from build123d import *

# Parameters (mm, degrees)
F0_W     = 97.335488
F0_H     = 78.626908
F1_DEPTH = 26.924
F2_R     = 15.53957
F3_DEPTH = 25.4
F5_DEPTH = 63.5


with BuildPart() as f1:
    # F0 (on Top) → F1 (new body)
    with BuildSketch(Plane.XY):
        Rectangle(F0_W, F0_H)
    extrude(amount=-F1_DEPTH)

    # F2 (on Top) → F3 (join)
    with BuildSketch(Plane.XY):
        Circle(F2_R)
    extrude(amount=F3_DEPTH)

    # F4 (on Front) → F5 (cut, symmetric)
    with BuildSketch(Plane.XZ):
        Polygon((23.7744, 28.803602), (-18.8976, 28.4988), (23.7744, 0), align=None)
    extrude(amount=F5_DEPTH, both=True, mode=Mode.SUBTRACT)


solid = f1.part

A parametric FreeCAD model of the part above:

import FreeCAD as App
import Part
import Sketcher

V = App.Vector
Q = App.Units.Quantity

doc = App.newDocument("Part")
body = doc.addObject("PartDesign::Body", "Body")

sketch1 = doc.addObject("Sketcher::SketchObject", "Sketch")
body.addObject(sketch1)
sketch1.AttachmentSupport = (doc.XY_Plane, [""])
sketch1.MapMode = "FlatFace"
sketch1.addGeometry([
    Part.LineSegment(V(-49, 39, 0), V(-49, -39, 0)),
    Part.LineSegment(V(-49, -39, 0), V(49, -39, 0)),
    Part.LineSegment(V(49, -39, 0), V(49, 39, 0)),
    Part.LineSegment(V(49, 39, 0), V(-49, 39, 0)),
], False)
sketch1.addConstraint([
    Sketcher.Constraint("Coincident", 0, 2, 1, 1),
    Sketcher.Constraint("Coincident", 1, 2, 2, 1),
    Sketcher.Constraint("Coincident", 2, 2, 3, 1),
    Sketcher.Constraint("Coincident", 3, 2, 0, 1),
    Sketcher.Constraint("Vertical", 0),
    Sketcher.Constraint("Horizontal", 1),
    Sketcher.Constraint("Vertical", 2),
    Sketcher.Constraint("Horizontal", 3),
    Sketcher.Constraint("Symmetric", 0, 2, 2, 2, -1, 1),
    Sketcher.Constraint("DistanceX", 1, 1, 1, 2, Q("97.335488 mm")),
    Sketcher.Constraint("DistanceY", 0, 2, 0, 1, Q("78.626908 mm")),
])
pad1 = doc.addObject("PartDesign::Pad", "Pad")
body.addObject(pad1)
pad1.Profile = sketch1
pad1.Length = Q("1.06 in")
pad1.Reversed = True

sketch2 = doc.addObject("Sketcher::SketchObject", "Sketch001")
body.addObject(sketch2)
sketch2.AttachmentSupport = (doc.XY_Plane, [""])
sketch2.MapMode = "FlatFace"
sketch2.addGeometry(Part.Circle(V(0, 0, 0), V(0, 0, 1), 16), False)
sketch2.addConstraint([
    Sketcher.Constraint("Coincident", 0, 3, -1, 1),
    Sketcher.Constraint("Diameter", 0, Q("31.07914 mm")),
])
pad2 = doc.addObject("PartDesign::Pad", "Pad001")
body.addObject(pad2)
pad2.Profile = sketch2
pad2.Length = Q("1 in")

sketch3 = doc.addObject("Sketcher::SketchObject", "Sketch002")
body.addObject(sketch3)
sketch3.AttachmentSupport = (doc.XZ_Plane, [""])
sketch3.MapMode = "FlatFace"
sketch3.addGeometry([
    Part.LineSegment(V(24, 29, 0), V(-19, 28, 0)),
    Part.LineSegment(V(-19, 28, 0), V(24, 0, 0)),
    Part.LineSegment(V(24, 0, 0), V(24, 29, 0)),
], False)
sketch3.addConstraint([
    Sketcher.Constraint("Coincident", 0, 2, 1, 1),
    Sketcher.Constraint("Coincident", 1, 2, 2, 1),
    Sketcher.Constraint("Coincident", 2, 2, 0, 1),
    Sketcher.Constraint("Vertical", 2),
    Sketcher.Constraint("PointOnObject", 1, 2, -1),
    Sketcher.Constraint("DistanceY", 2, 1, 2, 2, Q("1.1340001 in")),
    Sketcher.Constraint("DistanceX", 0, 2, 1, 2, Q("1.68 in")),
    Sketcher.Constraint("DistanceX", 0, 2, -1, 1, Q("0.744 in")),
    Sketcher.Constraint("DistanceY", -1, 1, 0, 2, Q("1.122 in")),
])
pocket1 = doc.addObject("PartDesign::Pocket", "Pocket")
body.addObject(pocket1)
pocket1.Profile = sketch3
pocket1.Length = Q("5 in")
pocket1.Midplane = True

doc.recompute()
